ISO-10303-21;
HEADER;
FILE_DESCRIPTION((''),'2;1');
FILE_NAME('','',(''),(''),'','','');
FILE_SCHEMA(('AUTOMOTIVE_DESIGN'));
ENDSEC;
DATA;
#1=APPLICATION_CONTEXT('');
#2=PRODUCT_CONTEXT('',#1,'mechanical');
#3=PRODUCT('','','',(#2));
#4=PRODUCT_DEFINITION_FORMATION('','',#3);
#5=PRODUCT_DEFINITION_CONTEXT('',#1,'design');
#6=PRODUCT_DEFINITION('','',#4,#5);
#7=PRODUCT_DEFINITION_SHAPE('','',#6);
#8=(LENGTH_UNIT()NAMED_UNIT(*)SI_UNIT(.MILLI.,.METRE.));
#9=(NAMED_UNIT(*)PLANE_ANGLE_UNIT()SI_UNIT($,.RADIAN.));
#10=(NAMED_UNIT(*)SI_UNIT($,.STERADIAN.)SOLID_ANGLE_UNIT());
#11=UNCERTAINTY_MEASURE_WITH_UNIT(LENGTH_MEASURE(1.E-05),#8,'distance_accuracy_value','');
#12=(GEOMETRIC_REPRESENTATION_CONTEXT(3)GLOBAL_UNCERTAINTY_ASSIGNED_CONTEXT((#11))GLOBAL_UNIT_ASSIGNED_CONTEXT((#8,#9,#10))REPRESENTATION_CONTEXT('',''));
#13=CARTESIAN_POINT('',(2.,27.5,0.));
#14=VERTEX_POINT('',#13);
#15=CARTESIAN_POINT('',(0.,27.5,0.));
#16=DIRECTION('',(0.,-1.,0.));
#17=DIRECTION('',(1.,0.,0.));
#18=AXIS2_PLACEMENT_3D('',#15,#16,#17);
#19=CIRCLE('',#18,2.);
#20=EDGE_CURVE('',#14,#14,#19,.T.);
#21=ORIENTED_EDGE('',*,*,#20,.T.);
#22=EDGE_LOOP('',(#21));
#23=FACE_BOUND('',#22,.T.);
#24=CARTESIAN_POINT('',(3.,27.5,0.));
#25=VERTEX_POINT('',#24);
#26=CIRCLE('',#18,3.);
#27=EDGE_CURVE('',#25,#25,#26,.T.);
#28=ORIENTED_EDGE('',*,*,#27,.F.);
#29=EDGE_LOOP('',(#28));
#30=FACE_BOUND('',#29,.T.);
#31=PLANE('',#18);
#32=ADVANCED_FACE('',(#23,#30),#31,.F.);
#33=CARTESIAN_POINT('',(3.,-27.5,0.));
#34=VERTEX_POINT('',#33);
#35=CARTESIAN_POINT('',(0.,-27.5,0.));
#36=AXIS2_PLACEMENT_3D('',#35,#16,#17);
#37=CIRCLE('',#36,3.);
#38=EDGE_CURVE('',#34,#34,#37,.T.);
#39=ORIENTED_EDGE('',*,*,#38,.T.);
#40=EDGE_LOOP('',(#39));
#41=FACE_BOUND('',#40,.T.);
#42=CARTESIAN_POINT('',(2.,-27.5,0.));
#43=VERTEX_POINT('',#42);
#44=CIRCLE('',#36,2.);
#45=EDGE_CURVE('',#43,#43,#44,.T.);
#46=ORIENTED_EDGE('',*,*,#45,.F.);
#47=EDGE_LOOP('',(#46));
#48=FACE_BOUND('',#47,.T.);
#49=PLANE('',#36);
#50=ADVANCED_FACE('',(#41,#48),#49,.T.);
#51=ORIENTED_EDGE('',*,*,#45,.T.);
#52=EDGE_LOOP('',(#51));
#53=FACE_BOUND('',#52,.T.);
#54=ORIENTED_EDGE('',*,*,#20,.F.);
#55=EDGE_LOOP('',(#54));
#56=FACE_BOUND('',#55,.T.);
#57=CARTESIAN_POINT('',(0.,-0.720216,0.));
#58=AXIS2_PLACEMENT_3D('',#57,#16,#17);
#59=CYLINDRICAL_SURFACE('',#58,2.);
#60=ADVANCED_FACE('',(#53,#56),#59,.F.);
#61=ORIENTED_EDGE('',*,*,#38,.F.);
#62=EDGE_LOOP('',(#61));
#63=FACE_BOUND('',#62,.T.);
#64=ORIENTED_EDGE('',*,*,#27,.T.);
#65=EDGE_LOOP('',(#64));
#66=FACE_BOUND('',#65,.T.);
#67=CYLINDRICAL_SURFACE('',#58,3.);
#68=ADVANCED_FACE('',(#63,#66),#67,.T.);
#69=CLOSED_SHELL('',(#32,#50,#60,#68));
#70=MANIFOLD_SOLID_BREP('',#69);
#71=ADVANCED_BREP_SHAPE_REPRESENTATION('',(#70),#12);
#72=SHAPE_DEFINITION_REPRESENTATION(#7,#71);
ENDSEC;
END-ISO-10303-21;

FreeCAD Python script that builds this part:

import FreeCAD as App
import Part
import Sketcher

doc = App.newDocument("Part")
params = doc.addObject("Spreadsheet::Sheet", "Params")
for row, (alias, value) in enumerate([
    ("sketch1_width", "1 mm"),
    ("sketch1_height", "55 mm"),
    ("revolution_angle", "360 deg"),
], start=1):
    params.set(f"A{row}", alias)
    params.set(f"B{row}", "=" + value)
    params.setAlias(f"B{row}", alias)

body = doc.addObject("PartDesign::Body", "Body")

# Sketch on XY plane
sketch1 = body.newObject("Sketcher::SketchObject", "Sketch")
sketch1.AttachmentSupport = (doc.getObject("XY_Plane"), [""])
sketch1.MapMode = "FlatFace"
sketch1.addGeometry([
    Part.LineSegment(App.Vector(-3, -27.5, 0), App.Vector(-2, -27.5, 0)),
    Part.LineSegment(App.Vector(-2, -27.5, 0), App.Vector(-2, 27.5, 0)),
    Part.LineSegment(App.Vector(-2, 27.5, 0), App.Vector(-3, 27.5, 0)),
    Part.LineSegment(App.Vector(-3, 27.5, 0), App.Vector(-3, -27.5, 0)),
], False)
sketch1.addConstraint([
    Sketcher.Constraint("Coincident", 0, 2, 1, 1),
    Sketcher.Constraint("Coincident", 1, 2, 2, 1),
    Sketcher.Constraint("Coincident", 2, 2, 3, 1),
    Sketcher.Constraint("Coincident", 3, 2, 0, 1),
    Sketcher.Constraint("Horizontal", 0),
    Sketcher.Constraint("Vertical", 1),
    Sketcher.Constraint("Horizontal", 2),
    Sketcher.Constraint("Vertical", 3),
    Sketcher.Constraint("DistanceX", 0, 1, 0, 2, 1.0),
    Sketcher.Constraint("DistanceY", 1, 1, 1, 2, 55.0),
    Sketcher.Constraint("DistanceX", 0, 2, -1, 1, 2.0),
    Sketcher.Constraint("DistanceY", 0, 2, -1, 1, 27.5),
])
sketch1.setExpression("Constraints[8]", "Params.sketch1_width")
sketch1.setExpression("Constraints[9]", "Params.sketch1_height")
revolution = body.newObject("PartDesign::Revolution", "Revolution")
revolution.Profile = sketch1
revolution.ReferenceAxis = (sketch1, ["V_Axis"])
revolution.setExpression("Angle", "Params.revolution_angle")

doc.recompute()
